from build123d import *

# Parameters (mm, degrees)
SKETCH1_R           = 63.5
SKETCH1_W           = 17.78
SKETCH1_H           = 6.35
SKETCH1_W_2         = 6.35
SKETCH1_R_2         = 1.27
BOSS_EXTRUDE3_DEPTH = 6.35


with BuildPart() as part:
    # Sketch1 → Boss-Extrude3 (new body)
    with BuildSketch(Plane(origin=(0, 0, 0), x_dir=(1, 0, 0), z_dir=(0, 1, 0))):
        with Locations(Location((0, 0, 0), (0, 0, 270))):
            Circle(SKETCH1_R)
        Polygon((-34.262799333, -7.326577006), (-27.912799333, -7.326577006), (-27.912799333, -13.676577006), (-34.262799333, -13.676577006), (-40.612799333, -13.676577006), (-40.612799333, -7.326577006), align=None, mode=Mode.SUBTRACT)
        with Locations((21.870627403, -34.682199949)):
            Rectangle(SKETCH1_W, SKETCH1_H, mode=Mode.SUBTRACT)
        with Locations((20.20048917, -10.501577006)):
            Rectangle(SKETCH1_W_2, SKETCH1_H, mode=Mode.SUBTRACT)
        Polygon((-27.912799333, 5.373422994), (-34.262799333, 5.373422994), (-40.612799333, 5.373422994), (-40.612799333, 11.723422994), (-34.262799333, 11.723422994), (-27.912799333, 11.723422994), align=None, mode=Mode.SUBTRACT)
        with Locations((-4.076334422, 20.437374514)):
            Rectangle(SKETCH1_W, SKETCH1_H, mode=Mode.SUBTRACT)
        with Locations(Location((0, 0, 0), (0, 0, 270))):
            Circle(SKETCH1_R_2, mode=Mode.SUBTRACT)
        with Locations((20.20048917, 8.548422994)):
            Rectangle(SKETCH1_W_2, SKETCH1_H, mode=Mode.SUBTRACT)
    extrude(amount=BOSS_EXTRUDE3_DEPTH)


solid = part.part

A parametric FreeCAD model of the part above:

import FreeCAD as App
import Part
import Sketcher

V = App.Vector
Q = App.Units.Quantity


def add_polygon(sketch, points):
    """Adds a closed chain of lines whose ends are joined by coincident constraints."""
    first, n = sketch.GeometryCount, len(points)
    for a, b in zip(points, points[1:] + points[:1]):
        sketch.addGeometry(Part.LineSegment(App.Vector(*a, 0), App.Vector(*b, 0)), False)
    for i in range(n):
        sketch.addConstraint(Sketcher.Constraint("Coincident", first + i, 2, first + (i + 1) % n, 1))

doc = App.newDocument("Part")
body = doc.addObject("PartDesign::Body", "Body")

# Sketch on XZ plane
sketch1 = body.newObject("Sketcher::SketchObject", "Sketch")
sketch1.AttachmentSupport = (doc.getObject("XZ_Plane"), [""])
sketch1.MapMode = "FlatFace"
sketch1.addGeometry(Part.Circle(V(0, 0, 0), V(0, 0, 1), 63.5), False)  # 0
add_polygon(sketch1, [(-27.912799, -11.723423), (-27.912799, -5.373423), (-40.612799, -5.373423), (-40.612799, -11.723423)])  # lines 1-4
add_polygon(sketch1, [(-40.612799, 7.326577), (-27.912799, 7.326577), (-27.912799, 13.676577), (-40.612799, 13.676577)])  # lines 5-8
add_polygon(sketch1, [(4.813666, -17.262375), (-12.966334, -17.262375), (-12.966334, -23.612375), (4.813666, -23.612375)])  # lines 9-12
sketch1.addGeometry(Part.Circle(V(0, 0, 0), V(0, 0, 1), 1.27), False)  # 13
add_polygon(sketch1, [(23.375489, -5.373423), (17.025489, -5.373423), (17.025489, -11.723423), (23.375489, -11.723423)])  # lines 14-17
add_polygon(sketch1, [(23.375489, 13.676577), (17.025489, 13.676577), (17.025489, 7.326577), (23.375489, 7.326577)])  # lines 18-21
add_polygon(sketch1, [(30.760627, 37.8572), (12.980627, 37.8572), (12.980627, 31.5072), (30.760627, 31.5072)])  # lines 22-25
sketch1.addConstraint([
    Sketcher.Constraint("Vertical", 1),
    Sketcher.Constraint("Horizontal", 2),
    Sketcher.Constraint("Vertical", 3),
    Sketcher.Constraint("Horizontal", 4),
    Sketcher.Constraint("Horizontal", 5),
    Sketcher.Constraint("Vertical", 6),
    Sketcher.Constraint("Horizontal", 7),
    Sketcher.Constraint("Vertical", 8),
    Sketcher.Constraint("Horizontal", 9),
    Sketcher.Constraint("Vertical", 10),
    Sketcher.Constraint("Horizontal", 11),
    Sketcher.Constraint("Vertical", 12),
    Sketcher.Constraint("Horizontal", 14),
    Sketcher.Constraint("Vertical", 15),
    Sketcher.Constraint("Horizontal", 16),
    Sketcher.Constraint("Vertical", 17),
    Sketcher.Constraint("Horizontal", 18),
    Sketcher.Constraint("Vertical", 19),
    Sketcher.Constraint("Horizontal", 20),
    Sketcher.Constraint("Vertical", 21),
    Sketcher.Constraint("Horizontal", 22),
    Sketcher.Constraint("Vertical", 23),
    Sketcher.Constraint("Horizontal", 24),
    Sketcher.Constraint("Vertical", 25),
    Sketcher.Constraint("Coincident", 0, 3, -1, 1),
    Sketcher.Constraint("Coincident", 13, 3, -1, 1),
    Sketcher.Constraint("Horizontal", 2, 2, 14, 2),
    Sketcher.Constraint("Horizontal", 4, 2, 15, 2),
    Sketcher.Constraint("Horizontal", 7, 2, 18, 2),
    Sketcher.Constraint("Horizontal", 8, 2, 19, 2),
    Sketcher.Constraint("Vertical", 4, 2, 5, 2),
    Sketcher.Constraint("Vertical", 3, 2, 7, 2),
    Sketcher.Constraint("Vertical", 15, 2, 18, 2),
    Sketcher.Constraint("Vertical", 17, 2, 20, 2),
    Sketcher.Constraint("Equal", 11, 22),
    Sketcher.Constraint("Equal", 20, 1),
    Sketcher.Constraint("Equal", 3, 6),
    Sketcher.Constraint("Equal", 8, 10),
    Sketcher.Constraint("Equal", 21, 23),
    Sketcher.Constraint("Diameter", 0, Q("5 in")),
    Sketcher.Constraint("Diameter", 13, Q("0.1 in")),
    Sketcher.Constraint("DistanceX", 2, 2, 2, 1, Q("0.5 in")),
    Sketcher.Constraint("DistanceX", 9, 2, 9, 1, Q("0.7 in")),
    Sketcher.Constraint("DistanceY", 4, 2, 6, 2, Q("1 in")),
    Sketcher.Constraint("DistanceX", 14, 2, 14, 1, Q("0.25 in")),
    Sketcher.Constraint("DistanceX", 1, 2, -1, 1, 27.912799),
    Sketcher.Constraint("DistanceY", -1, 1, 22, 2, 37.8572),
    Sketcher.Constraint("DistanceX", -1, 1, 14, 2, 17.025489),
    Sketcher.Constraint("DistanceY", 9, 2, 4, 2, 5.538952),
    Sketcher.Constraint("DistanceX", 22, 2, 18, 2, 4.044862),
    Sketcher.Constraint("DistanceY", 1, 2, -1, 1, 5.373423),
    Sketcher.Constraint("DistanceX", 9, 2, -1, 1, 12.966334),
])
pad1 = body.newObject("PartDesign::Pad", "Pad")
pad1.Profile = sketch1
pad1.Length = Q("0.25 in")
pad1.Reversed = True

doc.recompute()
